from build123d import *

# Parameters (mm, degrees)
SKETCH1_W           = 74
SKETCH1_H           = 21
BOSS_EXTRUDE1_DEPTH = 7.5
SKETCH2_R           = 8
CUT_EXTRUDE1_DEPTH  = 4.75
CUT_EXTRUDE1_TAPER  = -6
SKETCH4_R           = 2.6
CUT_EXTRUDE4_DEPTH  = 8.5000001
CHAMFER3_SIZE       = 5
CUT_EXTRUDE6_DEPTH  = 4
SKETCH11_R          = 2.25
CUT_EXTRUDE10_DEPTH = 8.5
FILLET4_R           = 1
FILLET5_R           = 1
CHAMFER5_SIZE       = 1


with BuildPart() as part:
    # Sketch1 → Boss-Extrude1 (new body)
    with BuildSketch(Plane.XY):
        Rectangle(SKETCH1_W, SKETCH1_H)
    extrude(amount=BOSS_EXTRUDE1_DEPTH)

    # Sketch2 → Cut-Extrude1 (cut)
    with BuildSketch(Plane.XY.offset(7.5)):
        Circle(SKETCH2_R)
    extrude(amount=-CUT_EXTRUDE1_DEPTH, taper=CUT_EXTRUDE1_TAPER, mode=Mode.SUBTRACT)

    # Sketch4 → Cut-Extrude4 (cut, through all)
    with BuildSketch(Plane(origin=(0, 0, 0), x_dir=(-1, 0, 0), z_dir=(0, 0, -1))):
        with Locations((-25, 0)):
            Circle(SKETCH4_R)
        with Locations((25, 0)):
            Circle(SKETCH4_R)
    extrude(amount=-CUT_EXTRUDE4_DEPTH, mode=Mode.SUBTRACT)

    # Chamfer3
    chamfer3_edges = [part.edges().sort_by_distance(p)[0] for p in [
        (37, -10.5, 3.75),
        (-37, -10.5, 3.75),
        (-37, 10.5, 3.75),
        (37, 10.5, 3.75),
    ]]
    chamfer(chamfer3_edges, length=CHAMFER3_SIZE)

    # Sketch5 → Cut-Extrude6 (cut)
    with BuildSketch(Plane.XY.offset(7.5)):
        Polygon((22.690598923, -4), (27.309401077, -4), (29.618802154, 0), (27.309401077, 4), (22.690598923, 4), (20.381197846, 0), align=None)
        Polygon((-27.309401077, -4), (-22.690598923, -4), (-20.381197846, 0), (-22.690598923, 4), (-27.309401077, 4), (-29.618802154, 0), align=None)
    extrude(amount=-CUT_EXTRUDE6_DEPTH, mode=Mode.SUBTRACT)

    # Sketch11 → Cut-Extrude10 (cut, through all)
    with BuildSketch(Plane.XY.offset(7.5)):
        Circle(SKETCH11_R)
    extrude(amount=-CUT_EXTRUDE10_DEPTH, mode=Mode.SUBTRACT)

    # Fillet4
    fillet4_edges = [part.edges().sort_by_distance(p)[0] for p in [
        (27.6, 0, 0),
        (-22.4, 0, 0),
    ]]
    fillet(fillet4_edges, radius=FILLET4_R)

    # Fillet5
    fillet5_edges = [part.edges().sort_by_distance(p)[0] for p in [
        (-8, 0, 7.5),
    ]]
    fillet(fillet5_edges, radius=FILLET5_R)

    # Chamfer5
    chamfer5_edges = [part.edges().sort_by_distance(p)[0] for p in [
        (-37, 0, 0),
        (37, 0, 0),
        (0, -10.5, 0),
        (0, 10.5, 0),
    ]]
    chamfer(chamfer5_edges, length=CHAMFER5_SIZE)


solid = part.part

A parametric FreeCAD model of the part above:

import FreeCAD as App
import Part
import Sketcher

V = App.Vector
Q = App.Units.Quantity


def edges_at(feature, points):
    """Names of the edges that pass closest to the given points."""
    edges = feature.Shape.Edges
    near = lambda p: min(range(len(edges)), key=lambda i: edges[i].distToShape(Part.Vertex(*p))[0])
    return sorted({f"Edge{near(p) + 1}" for p in points})

doc = App.newDocument("Part")
body = doc.addObject("PartDesign::Body", "Body")

# Sketch on XY plane
sketch1 = body.newObject("Sketcher::SketchObject", "Sketch")
sketch1.AttachmentSupport = (doc.getObject("XY_Plane"), [""])
sketch1.MapMode = "FlatFace"
sketch1.addGeometry([
    Part.LineSegment(V(-37, 10.5, 0), V(-37, -10.5, 0)),
    Part.LineSegment(V(-37, -10.5, 0), V(37, -10.5, 0)),
    Part.LineSegment(V(37, -10.5, 0), V(37, 10.5, 0)),
    Part.LineSegment(V(37, 10.5, 0), V(-37, 10.5, 0)),
], False)
sketch1.addConstraint([
    Sketcher.Constraint("Coincident", 0, 2, 1, 1),
    Sketcher.Constraint("Coincident", 1, 2, 2, 1),
    Sketcher.Constraint("Coincident", 2, 2, 3, 1),
    Sketcher.Constraint("Coincident", 3, 2, 0, 1),
    Sketcher.Constraint("Vertical", 0),
    Sketcher.Constraint("Horizontal", 1),
    Sketcher.Constraint("Vertical", 2),
    Sketcher.Constraint("Horizontal", 3),
    Sketcher.Constraint("Symmetric", 0, 2, 2, 2, -1, 1),
    Sketcher.Constraint("DistanceX", 1, 1, 1, 2, Q("74 mm")),
    Sketcher.Constraint("DistanceY", 0, 2, 0, 1, Q("21 mm")),
])
pad1 = body.newObject("PartDesign::Pad", "Pad")
pad1.Profile = sketch1
pad1.Length = 7.5

# Sketch on XY plane
sketch2 = body.newObject("Sketcher::SketchObject", "Sketch001")
sketch2.AttachmentSupport = (doc.getObject("XY_Plane"), [""])
sketch2.MapMode = "FlatFace"
sketch2.AttachmentOffset = App.Placement(V(0, 0, 7.5), App.Rotation())
sketch2.addGeometry(Part.Circle(V(0, 0, 0), V(0, 0, 1), 8), False)
sketch2.addConstraint([
    Sketcher.Constraint("Coincident", 0, 3, -1, 1),
    Sketcher.Constraint("Diameter", 0, Q("16 mm")),
])
pocket1 = body.newObject("PartDesign::Pocket", "Pocket")
pocket1.Profile = sketch2
pocket1.Length = 4.75
pocket1.TaperAngle = 6

# Sketch on XY plane
sketch3 = body.newObject("Sketcher::SketchObject", "Sketch002")
sketch3.AttachmentSupport = (doc.getObject("XY_Plane"), [""])
sketch3.MapMode = "FlatFace"
sketch3.addGeometry([
    Part.Circle(V(25, 0, 0), V(0, 0, 1), 2.6),
    Part.Circle(V(-25, 0, 0), V(0, 0, 1), 2.6),
], False)
sketch3.addConstraint([
    Sketcher.Constraint("Equal", 0, 1),
    Sketcher.Constraint("Symmetric", 0, 3, 1, 3, -1, 1),
    Sketcher.Constraint("PointOnObject", 0, 3, -1),
    Sketcher.Constraint("Diameter", 0, Q("5.2 mm")),
    Sketcher.Constraint("DistanceX", -1, 1, 0, 3, Q("25 mm")),
])
pocket2 = body.newObject("PartDesign::Pocket", "Pocket001")
pocket2.Profile = sketch3
pocket2.Type = "ThroughAll"
pocket2.Reversed = True
doc.recompute()

chamfer = body.newObject("PartDesign::Chamfer", "Chamfer")
chamfer.Base = (pocket2, edges_at(pocket2, [
    (37, -10.5, 3.75),
    (-37, -10.5, 3.75),
    (-37, 10.5, 3.75),
    (37, 10.5, 3.75),
]))
chamfer.Size = 5

# Sketch on XY plane
sketch4 = body.newObject("Sketcher::SketchObject", "Sketch003")
sketch4.AttachmentSupport = (doc.getObject("XY_Plane"), [""])
sketch4.MapMode = "FlatFace"
sketch4.AttachmentOffset = App.Placement(V(0, 0, 7.5), App.Rotation())
sketch4.addGeometry([
    Part.LineSegment(V(22.690599, -4, 0), V(27.309401, -4, 0)),  # 0
    Part.LineSegment(V(27.309401, -4, 0), V(29.618802, 0, 0)),  # 1
    Part.LineSegment(V(29.618802, 0, 0), V(27.309401, 4, 0)),  # 2
    Part.LineSegment(V(27.309401, 4, 0), V(22.690599, 4, 0)),  # 3
    Part.LineSegment(V(22.690599, 4, 0), V(20.381198, 0, 0)),  # 4
    Part.LineSegment(V(20.381198, 0, 0), V(22.690599, -4, 0)),  # 5
    Part.LineSegment(V(-27.309401, -4, 0), V(-22.690599, -4, 0)),  # 6
    Part.LineSegment(V(-22.690599, -4, 0), V(-20.381198, 0, 0)),  # 7
    Part.LineSegment(V(-20.381198, 0, 0), V(-22.690599, 4, 0)),  # 8
    Part.LineSegment(V(-22.690599, 4, 0), V(-27.309401, 4, 0)),  # 9
    Part.LineSegment(V(-27.309401, 4, 0), V(-29.618802, 0, 0)),  # 10
    Part.LineSegment(V(-29.618802, 0, 0), V(-27.309401, -4, 0)),  # 11
], False)
sketch4.addConstraint([
    Sketcher.Constraint("Coincident", 0, 2, 1, 1),
    Sketcher.Constraint("Coincident", 1, 2, 2, 1),
    Sketcher.Constraint("Coincident", 2, 2, 3, 1),
    Sketcher.Constraint("Coincident", 3, 2, 4, 1),
    Sketcher.Constraint("Coincident", 4, 2, 5, 1),
    Sketcher.Constraint("Coincident", 5, 2, 0, 1),
    Sketcher.Constraint("Coincident", 6, 2, 7, 1),
    Sketcher.Constraint("Coincident", 7, 2, 8, 1),
    Sketcher.Constraint("Coincident", 8, 2, 9, 1),
    Sketcher.Constraint("Coincident", 9, 2, 10, 1),
    Sketcher.Constraint("Coincident", 10, 2, 11, 1),
    Sketcher.Constraint("Coincident", 11, 2, 6, 1),
    Sketcher.Constraint("Horizontal", 0),
    Sketcher.Constraint("Horizontal", 3),
    Sketcher.Constraint("Horizontal", 6),
    Sketcher.Constraint("Horizontal", 9),
    Sketcher.Constraint("Symmetric", 3, 2, 6, 2, -1, 1),
    Sketcher.Constraint("Symmetric", 4, 2, 7, 2, -1, 1),
    Sketcher.Constraint("Symmetric", 5, 2, 8, 2, -1, 1),
    Sketcher.Constraint("Symmetric", 1, 2, 10, 2, -1, 1),
    Sketcher.Constraint("Symmetric", 5, 2, 6, 2, -2),
    Sketcher.Constraint("PointOnObject", 1, 2, -1),
    Sketcher.Constraint("PointOnObject", 4, 2, -1),
    Sketcher.Constraint("Parallel", 1, 4),
    Sketcher.Constraint("Parallel", 2, 5),
    Sketcher.Constraint("Parallel", 7, 10),
    Sketcher.Constraint("Parallel", 8, 11),
    Sketcher.Constraint("Angle", 1, Q("60 deg")),
    Sketcher.Constraint("DistanceY", 0, 2, -1, 1, Q("4 mm")),
    Sketcher.Constraint("DistanceX", 6, 2, 0, 2, Q("50 mm")),
    Sketcher.Constraint("DistanceX", -1, 1, 0, 2, Q("27.309401 mm")),
])
pocket3 = body.newObject("PartDesign::Pocket", "Pocket002")
pocket3.Profile = sketch4
pocket3.Length = 4

# Sketch on XY plane
sketch5 = body.newObject("Sketcher::SketchObject", "Sketch004")
sketch5.AttachmentSupport = (doc.getObject("XY_Plane"), [""])
sketch5.MapMode = "FlatFace"
sketch5.AttachmentOffset = App.Placement(V(0, 0, 7.5), App.Rotation())
sketch5.addGeometry(Part.Circle(V(0, 0, 0), V(0, 0, 1), 2.25), False)
sketch5.addConstraint([
    Sketcher.Constraint("Coincident", 0, 3, -1, 1),
    Sketcher.Constraint("Diameter", 0, Q("4.5 mm")),
])
pocket4 = body.newObject("PartDesign::Pocket", "Pocket003")
pocket4.Profile = sketch5
pocket4.Type = "ThroughAll"
doc.recompute()

fillet = body.newObject("PartDesign::Fillet", "Fillet")
fillet.Base = (pocket4, edges_at(pocket4, [(27.6, 0, 0), (-22.4, 0, 0)]))
fillet.Radius = 1
doc.recompute()

fillet2 = body.newObject("PartDesign::Fillet", "Fillet001")
fillet2.Base = (fillet, edges_at(fillet, [(-8, 0, 7.5)]))
fillet2.Radius = 1
doc.recompute()

chamfer2 = body.newObject("PartDesign::Chamfer", "Chamfer001")
chamfer2.Base = (fillet2, edges_at(fillet2, [
    (-37, 0, 0),
    (37, 0, 0),
    (0, -10.5, 0),
    (0, 10.5, 0),
]))
chamfer2.Size = 1

doc.recompute()
